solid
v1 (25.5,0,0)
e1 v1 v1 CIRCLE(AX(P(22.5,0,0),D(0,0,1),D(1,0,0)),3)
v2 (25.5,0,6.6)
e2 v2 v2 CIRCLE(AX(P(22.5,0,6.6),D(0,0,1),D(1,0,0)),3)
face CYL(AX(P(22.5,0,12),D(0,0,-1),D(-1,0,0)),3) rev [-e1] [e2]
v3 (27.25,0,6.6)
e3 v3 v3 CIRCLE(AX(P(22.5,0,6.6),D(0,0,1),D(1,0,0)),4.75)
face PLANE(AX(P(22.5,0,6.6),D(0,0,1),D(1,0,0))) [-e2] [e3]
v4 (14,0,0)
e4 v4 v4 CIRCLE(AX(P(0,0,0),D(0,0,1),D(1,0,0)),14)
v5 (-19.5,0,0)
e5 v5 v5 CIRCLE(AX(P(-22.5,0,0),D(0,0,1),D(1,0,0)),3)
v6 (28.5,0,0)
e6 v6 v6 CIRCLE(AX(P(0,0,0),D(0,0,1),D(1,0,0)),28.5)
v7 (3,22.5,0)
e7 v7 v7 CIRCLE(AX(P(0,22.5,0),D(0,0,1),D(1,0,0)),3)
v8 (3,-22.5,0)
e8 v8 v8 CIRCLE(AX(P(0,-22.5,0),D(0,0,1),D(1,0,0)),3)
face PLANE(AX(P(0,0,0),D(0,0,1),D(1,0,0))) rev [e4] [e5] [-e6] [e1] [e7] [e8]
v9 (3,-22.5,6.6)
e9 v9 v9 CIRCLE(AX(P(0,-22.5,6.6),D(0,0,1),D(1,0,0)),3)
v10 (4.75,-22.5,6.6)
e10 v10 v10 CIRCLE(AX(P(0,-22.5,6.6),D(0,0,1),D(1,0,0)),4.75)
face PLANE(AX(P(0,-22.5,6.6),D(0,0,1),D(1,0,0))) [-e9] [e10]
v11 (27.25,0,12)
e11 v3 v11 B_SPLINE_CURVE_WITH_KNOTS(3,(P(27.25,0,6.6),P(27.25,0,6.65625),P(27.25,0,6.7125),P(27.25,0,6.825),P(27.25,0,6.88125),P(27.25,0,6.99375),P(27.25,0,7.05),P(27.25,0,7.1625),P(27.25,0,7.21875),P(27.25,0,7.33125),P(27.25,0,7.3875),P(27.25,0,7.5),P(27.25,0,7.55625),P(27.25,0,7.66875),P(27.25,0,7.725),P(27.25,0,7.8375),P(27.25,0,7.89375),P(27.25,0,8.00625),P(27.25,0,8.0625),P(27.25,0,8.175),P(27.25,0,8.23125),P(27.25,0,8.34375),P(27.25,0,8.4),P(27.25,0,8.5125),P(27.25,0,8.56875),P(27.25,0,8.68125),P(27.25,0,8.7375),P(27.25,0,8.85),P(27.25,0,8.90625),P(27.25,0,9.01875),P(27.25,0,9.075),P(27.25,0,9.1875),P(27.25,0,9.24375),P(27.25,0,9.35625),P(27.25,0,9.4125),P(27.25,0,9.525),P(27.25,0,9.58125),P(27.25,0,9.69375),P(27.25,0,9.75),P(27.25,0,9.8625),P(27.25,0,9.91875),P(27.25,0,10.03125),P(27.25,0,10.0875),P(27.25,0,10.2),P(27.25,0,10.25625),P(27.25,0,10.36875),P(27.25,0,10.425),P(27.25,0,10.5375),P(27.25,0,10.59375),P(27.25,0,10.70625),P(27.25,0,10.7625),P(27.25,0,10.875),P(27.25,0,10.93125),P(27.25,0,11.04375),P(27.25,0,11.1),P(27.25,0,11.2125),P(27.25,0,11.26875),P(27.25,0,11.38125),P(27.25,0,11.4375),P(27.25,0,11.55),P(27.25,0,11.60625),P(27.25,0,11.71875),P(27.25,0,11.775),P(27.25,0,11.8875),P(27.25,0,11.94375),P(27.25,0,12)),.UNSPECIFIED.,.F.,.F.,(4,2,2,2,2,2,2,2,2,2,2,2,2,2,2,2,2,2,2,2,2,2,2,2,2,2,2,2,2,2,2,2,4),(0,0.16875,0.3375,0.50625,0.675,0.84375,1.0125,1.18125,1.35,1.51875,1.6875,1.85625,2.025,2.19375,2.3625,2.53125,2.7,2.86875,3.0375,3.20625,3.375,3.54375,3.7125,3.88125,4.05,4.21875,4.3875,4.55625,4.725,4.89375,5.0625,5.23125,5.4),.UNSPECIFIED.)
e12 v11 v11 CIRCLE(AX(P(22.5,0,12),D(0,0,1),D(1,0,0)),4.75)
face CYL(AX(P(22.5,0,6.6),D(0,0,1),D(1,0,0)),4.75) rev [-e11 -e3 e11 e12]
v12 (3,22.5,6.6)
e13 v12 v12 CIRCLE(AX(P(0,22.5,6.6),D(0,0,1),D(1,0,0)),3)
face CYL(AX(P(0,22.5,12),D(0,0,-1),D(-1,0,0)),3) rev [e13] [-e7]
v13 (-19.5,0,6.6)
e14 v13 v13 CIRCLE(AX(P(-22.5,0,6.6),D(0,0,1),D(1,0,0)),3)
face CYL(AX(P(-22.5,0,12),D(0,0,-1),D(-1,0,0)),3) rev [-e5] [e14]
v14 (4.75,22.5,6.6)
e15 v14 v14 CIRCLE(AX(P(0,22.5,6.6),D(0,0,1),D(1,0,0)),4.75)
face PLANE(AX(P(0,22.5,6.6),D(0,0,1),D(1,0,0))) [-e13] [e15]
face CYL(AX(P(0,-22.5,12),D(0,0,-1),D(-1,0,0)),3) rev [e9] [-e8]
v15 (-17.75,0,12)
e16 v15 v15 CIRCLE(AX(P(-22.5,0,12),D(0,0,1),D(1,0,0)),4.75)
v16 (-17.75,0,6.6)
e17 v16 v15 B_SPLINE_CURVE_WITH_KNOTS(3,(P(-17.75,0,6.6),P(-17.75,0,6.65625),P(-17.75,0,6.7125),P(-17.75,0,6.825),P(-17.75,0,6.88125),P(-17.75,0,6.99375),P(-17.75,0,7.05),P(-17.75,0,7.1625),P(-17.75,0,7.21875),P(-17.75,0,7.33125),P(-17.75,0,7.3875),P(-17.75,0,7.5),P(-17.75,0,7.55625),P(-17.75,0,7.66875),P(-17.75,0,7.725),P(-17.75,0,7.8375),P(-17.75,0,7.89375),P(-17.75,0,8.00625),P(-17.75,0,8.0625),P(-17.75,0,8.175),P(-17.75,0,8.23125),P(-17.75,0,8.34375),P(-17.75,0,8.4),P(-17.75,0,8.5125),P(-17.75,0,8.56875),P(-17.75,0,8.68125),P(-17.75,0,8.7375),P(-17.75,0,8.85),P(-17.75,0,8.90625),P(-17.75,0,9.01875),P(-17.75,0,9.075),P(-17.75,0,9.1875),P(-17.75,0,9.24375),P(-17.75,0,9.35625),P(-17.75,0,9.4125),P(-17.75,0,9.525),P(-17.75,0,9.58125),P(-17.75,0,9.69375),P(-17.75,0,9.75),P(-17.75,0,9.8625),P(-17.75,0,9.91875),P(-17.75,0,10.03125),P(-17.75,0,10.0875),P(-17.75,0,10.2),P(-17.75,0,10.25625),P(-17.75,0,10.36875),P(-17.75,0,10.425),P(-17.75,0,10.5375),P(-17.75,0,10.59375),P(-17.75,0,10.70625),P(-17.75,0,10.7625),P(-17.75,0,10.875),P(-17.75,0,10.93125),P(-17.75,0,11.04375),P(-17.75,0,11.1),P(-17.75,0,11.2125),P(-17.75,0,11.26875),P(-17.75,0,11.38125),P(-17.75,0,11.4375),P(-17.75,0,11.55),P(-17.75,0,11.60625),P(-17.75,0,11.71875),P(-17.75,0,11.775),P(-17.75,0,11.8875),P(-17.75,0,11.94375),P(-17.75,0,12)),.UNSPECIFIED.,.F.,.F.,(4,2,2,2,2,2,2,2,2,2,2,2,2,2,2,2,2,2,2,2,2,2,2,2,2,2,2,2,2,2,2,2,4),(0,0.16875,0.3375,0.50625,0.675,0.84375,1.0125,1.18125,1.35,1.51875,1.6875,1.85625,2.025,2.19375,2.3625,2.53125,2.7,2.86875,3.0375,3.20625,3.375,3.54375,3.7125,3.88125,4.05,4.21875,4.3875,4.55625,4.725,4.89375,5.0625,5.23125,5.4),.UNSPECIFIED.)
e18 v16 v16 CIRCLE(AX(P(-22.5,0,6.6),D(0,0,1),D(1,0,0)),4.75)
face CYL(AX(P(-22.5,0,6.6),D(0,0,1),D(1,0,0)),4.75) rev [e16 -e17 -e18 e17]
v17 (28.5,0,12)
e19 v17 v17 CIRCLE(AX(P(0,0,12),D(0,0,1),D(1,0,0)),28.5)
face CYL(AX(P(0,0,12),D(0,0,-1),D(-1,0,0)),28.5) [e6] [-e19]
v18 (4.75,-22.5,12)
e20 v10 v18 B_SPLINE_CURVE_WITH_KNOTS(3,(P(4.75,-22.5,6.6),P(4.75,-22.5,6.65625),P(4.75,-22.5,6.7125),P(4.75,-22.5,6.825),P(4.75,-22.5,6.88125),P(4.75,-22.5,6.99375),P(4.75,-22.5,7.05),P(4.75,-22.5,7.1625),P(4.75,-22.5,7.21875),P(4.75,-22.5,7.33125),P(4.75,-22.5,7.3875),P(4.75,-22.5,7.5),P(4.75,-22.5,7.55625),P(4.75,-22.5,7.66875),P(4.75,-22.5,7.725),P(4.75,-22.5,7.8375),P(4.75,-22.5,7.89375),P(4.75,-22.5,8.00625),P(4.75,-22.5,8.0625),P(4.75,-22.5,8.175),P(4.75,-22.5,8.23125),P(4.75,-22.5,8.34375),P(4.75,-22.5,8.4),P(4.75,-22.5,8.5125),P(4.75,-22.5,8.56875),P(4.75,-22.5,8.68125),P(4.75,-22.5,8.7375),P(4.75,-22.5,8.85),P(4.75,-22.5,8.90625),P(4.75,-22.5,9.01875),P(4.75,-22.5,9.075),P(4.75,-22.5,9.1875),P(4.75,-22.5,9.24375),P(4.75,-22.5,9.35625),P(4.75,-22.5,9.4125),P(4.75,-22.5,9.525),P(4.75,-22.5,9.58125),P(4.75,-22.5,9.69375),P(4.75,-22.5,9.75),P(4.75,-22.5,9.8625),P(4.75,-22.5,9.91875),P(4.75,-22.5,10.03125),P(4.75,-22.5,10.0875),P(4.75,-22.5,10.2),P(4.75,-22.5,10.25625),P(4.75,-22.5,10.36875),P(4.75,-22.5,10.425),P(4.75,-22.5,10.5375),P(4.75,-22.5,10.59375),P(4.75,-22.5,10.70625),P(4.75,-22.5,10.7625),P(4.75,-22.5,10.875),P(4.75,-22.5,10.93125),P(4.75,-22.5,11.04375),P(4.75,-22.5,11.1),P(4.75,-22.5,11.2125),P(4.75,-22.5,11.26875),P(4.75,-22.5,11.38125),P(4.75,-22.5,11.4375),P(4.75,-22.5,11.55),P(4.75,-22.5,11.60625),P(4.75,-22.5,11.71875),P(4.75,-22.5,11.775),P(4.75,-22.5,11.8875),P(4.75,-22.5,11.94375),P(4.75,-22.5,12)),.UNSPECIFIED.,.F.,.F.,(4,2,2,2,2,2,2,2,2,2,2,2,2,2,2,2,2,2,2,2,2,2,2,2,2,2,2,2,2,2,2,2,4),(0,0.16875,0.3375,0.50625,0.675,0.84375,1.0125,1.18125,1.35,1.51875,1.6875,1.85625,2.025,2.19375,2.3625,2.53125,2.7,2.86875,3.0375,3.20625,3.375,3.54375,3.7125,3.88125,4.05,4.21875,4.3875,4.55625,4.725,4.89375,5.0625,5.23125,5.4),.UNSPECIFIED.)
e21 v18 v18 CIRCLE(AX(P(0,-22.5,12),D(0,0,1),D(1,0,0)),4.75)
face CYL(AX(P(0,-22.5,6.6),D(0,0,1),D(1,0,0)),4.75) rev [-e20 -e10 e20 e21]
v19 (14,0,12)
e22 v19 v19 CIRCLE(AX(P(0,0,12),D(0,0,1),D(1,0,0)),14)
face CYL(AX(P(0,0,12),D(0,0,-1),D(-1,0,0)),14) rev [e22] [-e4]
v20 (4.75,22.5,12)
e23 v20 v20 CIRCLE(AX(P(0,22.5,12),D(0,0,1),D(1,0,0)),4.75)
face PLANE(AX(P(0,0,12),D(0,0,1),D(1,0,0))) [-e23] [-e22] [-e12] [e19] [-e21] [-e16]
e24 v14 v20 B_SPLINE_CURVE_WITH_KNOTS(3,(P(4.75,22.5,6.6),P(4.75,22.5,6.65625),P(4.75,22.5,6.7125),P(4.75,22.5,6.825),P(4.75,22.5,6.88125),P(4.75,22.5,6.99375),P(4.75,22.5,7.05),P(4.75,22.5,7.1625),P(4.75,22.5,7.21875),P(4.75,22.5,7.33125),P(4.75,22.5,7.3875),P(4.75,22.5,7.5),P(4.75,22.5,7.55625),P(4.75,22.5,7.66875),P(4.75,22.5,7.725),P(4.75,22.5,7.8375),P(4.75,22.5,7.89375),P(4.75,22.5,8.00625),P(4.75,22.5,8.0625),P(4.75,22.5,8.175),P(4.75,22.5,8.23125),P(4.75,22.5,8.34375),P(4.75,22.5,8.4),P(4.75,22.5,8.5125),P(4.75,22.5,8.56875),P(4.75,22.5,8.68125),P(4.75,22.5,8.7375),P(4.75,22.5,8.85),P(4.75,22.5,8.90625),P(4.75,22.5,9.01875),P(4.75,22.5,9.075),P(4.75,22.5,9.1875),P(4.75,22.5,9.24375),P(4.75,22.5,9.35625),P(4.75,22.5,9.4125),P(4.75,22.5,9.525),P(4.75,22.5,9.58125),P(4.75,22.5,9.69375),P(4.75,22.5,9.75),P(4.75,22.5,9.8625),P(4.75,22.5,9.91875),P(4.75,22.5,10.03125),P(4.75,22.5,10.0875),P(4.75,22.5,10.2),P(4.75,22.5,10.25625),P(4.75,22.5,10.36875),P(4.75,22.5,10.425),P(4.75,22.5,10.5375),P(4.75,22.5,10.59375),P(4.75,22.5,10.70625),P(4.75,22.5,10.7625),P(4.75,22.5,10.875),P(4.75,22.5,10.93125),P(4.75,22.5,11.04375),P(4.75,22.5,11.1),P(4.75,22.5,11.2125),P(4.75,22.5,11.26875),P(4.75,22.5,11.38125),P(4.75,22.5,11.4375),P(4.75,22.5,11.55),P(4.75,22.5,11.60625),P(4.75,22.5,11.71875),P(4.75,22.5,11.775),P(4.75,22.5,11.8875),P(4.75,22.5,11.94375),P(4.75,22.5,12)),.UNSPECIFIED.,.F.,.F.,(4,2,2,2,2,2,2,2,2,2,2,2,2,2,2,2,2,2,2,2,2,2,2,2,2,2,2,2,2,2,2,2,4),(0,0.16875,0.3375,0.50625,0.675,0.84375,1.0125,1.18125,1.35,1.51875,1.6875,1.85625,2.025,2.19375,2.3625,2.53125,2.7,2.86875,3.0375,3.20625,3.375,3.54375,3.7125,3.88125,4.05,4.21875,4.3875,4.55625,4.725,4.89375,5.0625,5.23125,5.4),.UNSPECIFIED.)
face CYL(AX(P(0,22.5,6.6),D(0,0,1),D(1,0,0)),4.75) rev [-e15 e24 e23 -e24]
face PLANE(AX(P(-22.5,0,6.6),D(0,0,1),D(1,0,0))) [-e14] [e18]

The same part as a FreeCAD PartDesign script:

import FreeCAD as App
import Part
import Sketcher
from FreeCAD import Vector

doc = App.newDocument("Part")
params = doc.addObject("Spreadsheet::Sheet", "Params")
for row, (alias, value) in enumerate([
    ("sketch1_diameter", "57 mm"),
    ("sketch1_diameter2", "6 mm"),
    ("sketch1_diameter3", "28 mm"),
    ("pad1_length", "12 mm"),
    ("sketch2_diameter", "9.5 mm"),
    ("pocket1_length", "5.4 mm"),
], start=1):
    params.set(f"A{row}", alias)
    params.set(f"B{row}", "=" + value)
    params.setAlias(f"B{row}", alias)

body = doc.addObject("PartDesign::Body", "Body")

# Sketch on XY plane
sketch1 = body.newObject("Sketcher::SketchObject", "Sketch")
sketch1.AttachmentSupport = (doc.getObject("XY_Plane"), [""])
sketch1.MapMode = "FlatFace"
sketch1.addGeometry([
    Part.Circle(Vector(0, 0, 0), Vector(0, 0, 1), 28.5),  # 0
    Part.Circle(Vector(0, -22.5, 0), Vector(0, 0, 1), 3),  # 1
    Part.Circle(Vector(-22.5, 0, 0), Vector(0, 0, 1), 3),  # 2
    Part.Circle(Vector(0, 0, 0), Vector(0, 0, 1), 14),  # 3
    Part.Circle(Vector(22.5, 0, 0), Vector(0, 0, 1), 3),  # 4
    Part.Circle(Vector(0, 22.5, 0), Vector(0, 0, 1), 3),  # 5
], False)
sketch1.addConstraint([
    Sketcher.Constraint("Coincident", 0, 3, -1, 1),
    Sketcher.Constraint("Coincident", 3, 3, -1, 1),
    Sketcher.Constraint("Equal", 1, 2),
    Sketcher.Constraint("Equal", 2, 4),
    Sketcher.Constraint("Equal", 4, 5),
    Sketcher.Constraint("Symmetric", 2, 3, 4, 3, -1, 1),
    Sketcher.Constraint("Symmetric", 1, 3, 5, 3, -1, 1),
    Sketcher.Constraint("PointOnObject", 1, 3, -2),
    Sketcher.Constraint("PointOnObject", 2, 3, -1),
    Sketcher.Constraint("Diameter", 0, 57.0),
    Sketcher.Constraint("Diameter", 1, 6.0),
    Sketcher.Constraint("Diameter", 3, 28.0),
    Sketcher.Constraint("DistanceX", 2, 3, 4, 3, 45.0),
    Sketcher.Constraint("DistanceY", 1, 3, 5, 3, 45.0),
])
sketch1.setExpression("Constraints[9]", "Params.sketch1_diameter")
sketch1.setExpression("Constraints[10]", "Params.sketch1_diameter2")
sketch1.setExpression("Constraints[11]", "Params.sketch1_diameter3")
pad1 = body.newObject("PartDesign::Pad", "Pad")
pad1.Profile = sketch1
pad1.setExpression("Length", "Params.pad1_length")

# Sketch on XY plane
sketch2 = body.newObject("Sketcher::SketchObject", "Sketch001")
sketch2.AttachmentSupport = (doc.getObject("XY_Plane"), [""])
sketch2.MapMode = "FlatFace"
sketch2.AttachmentOffset = App.Placement(Vector(0, 0, 12), App.Rotation())
sketch2.addGeometry([
    Part.Circle(Vector(0, 22.5, 0), Vector(0, 0, 1), 4.8),
    Part.Circle(Vector(22.5, 0, 0), Vector(0, 0, 1), 4.8),
    Part.Circle(Vector(0, -22.5, 0), Vector(0, 0, 1), 4.8),
    Part.Circle(Vector(-22.5, 0, 0), Vector(0, 0, 1), 4.8),
], False)
sketch2.addConstraint([
    Sketcher.Constraint("Equal", 0, 1),
    Sketcher.Constraint("Equal", 1, 2),
    Sketcher.Constraint("Equal", 2, 3),
    Sketcher.Constraint("Symmetric", 0, 3, 2, 3, -1, 1),
    Sketcher.Constraint("Symmetric", 1, 3, 3, 3, -1, 1),
    Sketcher.Constraint("PointOnObject", 0, 3, -2),
    Sketcher.Constraint("PointOnObject", 1, 3, -1),
    Sketcher.Constraint("Diameter", 0, 9.5),
    Sketcher.Constraint("DistanceY", 2, 3, 0, 3, 45.0),
    Sketcher.Constraint("DistanceX", 3, 3, 1, 3, 45.0),
])
sketch2.setExpression("Constraints[7]", "Params.sketch2_diameter")
pocket1 = body.newObject("PartDesign::Pocket", "Pocket")
pocket1.Profile = sketch2
pocket1.setExpression("Length", "Params.pocket1_length")

doc.recompute()
